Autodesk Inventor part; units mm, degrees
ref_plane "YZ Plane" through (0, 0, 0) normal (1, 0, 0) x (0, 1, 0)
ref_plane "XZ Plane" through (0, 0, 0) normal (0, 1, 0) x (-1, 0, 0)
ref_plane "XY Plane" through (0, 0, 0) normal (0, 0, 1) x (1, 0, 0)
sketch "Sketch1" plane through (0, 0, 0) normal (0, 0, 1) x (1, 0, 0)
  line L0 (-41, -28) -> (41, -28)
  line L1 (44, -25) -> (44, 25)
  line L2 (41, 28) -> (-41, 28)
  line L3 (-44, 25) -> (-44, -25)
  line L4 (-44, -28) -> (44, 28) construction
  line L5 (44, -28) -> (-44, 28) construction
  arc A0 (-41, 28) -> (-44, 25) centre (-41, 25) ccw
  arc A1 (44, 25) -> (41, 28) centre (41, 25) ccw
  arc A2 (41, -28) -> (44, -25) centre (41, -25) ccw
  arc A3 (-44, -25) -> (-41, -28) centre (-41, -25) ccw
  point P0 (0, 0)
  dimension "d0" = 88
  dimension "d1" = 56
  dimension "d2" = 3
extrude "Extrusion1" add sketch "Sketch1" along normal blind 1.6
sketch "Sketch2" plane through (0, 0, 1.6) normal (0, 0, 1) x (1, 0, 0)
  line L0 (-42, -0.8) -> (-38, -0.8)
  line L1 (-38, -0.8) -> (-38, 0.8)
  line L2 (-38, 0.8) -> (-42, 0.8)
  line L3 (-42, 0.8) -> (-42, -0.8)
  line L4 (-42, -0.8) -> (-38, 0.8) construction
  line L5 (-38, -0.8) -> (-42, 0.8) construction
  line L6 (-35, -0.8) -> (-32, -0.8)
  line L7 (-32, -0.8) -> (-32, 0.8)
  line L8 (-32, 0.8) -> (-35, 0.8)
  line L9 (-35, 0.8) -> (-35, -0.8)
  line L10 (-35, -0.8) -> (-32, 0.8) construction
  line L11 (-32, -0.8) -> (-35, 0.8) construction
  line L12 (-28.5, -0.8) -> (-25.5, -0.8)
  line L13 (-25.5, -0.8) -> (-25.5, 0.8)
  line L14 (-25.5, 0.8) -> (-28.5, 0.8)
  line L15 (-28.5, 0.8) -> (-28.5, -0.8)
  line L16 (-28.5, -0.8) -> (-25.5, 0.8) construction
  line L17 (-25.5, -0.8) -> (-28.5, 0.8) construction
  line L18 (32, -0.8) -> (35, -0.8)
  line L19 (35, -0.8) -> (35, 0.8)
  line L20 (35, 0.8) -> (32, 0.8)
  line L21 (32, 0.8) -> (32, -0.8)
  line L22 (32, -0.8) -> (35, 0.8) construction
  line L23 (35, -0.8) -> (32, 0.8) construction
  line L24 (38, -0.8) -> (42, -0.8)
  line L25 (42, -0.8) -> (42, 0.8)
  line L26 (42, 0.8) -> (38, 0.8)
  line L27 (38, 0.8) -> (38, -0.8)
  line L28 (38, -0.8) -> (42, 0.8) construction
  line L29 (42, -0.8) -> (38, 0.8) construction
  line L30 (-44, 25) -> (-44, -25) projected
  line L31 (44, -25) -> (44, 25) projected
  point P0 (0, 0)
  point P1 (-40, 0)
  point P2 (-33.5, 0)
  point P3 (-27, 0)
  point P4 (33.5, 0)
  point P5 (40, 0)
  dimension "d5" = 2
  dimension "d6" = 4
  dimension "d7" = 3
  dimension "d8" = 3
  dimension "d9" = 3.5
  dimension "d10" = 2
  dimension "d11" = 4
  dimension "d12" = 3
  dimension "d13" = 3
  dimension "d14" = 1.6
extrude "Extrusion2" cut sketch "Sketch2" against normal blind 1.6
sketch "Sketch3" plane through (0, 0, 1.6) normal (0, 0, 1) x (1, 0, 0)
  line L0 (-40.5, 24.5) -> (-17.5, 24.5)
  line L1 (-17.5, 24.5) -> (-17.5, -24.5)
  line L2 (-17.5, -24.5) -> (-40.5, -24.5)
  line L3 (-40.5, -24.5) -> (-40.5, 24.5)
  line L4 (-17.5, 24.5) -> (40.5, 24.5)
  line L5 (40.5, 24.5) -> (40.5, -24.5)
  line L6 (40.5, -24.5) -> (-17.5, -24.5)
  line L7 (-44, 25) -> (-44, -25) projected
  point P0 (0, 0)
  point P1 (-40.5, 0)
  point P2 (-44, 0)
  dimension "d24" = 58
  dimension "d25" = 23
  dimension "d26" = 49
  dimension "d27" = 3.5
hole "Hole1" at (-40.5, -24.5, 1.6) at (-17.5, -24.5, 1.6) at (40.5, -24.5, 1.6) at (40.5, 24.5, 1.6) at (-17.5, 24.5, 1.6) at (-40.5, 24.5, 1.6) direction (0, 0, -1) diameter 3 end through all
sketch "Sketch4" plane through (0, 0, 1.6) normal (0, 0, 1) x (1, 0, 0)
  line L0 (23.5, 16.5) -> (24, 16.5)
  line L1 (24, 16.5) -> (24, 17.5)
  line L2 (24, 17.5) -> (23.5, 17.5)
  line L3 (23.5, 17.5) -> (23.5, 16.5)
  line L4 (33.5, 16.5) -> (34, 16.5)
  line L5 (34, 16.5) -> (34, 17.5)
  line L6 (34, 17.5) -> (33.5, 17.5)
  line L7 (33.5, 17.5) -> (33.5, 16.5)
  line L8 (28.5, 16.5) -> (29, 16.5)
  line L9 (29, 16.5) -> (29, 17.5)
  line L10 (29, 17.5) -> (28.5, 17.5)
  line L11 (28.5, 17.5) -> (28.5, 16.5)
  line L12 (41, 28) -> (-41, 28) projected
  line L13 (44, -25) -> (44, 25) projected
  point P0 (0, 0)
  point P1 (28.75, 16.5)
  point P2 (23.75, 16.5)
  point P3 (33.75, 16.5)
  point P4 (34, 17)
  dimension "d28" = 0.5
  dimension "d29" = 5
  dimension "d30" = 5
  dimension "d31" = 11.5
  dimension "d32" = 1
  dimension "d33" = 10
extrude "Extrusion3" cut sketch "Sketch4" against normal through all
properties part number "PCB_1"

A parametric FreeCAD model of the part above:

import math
import FreeCAD as App
import Part
import Sketcher

doc = App.newDocument("Part")
body = doc.addObject("PartDesign::Body", "Body")

sketch1 = doc.addObject("Sketcher::SketchObject", "Sketch")
body.addObject(sketch1)
sketch1.AttachmentSupport = (doc.XY_Plane, [""])
sketch1.MapMode = "FlatFace"
sketch1.addGeometry([
    Part.ArcOfCircle(Part.Circle(App.Vector(-41, -25, 0), App.Vector(0, 0, 1), 3), math.radians(180), math.radians(270)),
    Part.LineSegment(App.Vector(-41, -28, 0), App.Vector(41, -28, 0)),
    Part.ArcOfCircle(Part.Circle(App.Vector(41, -25, 0), App.Vector(0, 0, 1), 3), math.radians(-90), math.radians(0)),
    Part.LineSegment(App.Vector(44, -25, 0), App.Vector(44, 25, 0)),
    Part.ArcOfCircle(Part.Circle(App.Vector(41, 25, 0), App.Vector(0, 0, 1), 3), math.radians(0), math.radians(90)),
    Part.LineSegment(App.Vector(41, 28, 0), App.Vector(-41, 28, 0)),
    Part.ArcOfCircle(Part.Circle(App.Vector(-41, 25, 0), App.Vector(0, 0, 1), 3), math.radians(90), math.radians(180)),
    Part.LineSegment(App.Vector(-44, 25, 0), App.Vector(-44, -25, 0)),
], False)
sketch1.addConstraint([
    Sketcher.Constraint("Tangent", 0, 2, 1, 1),
    Sketcher.Constraint("Tangent", 1, 2, 2, 1),
    Sketcher.Constraint("Tangent", 2, 2, 3, 1),
    Sketcher.Constraint("Tangent", 3, 2, 4, 1),
    Sketcher.Constraint("Tangent", 4, 2, 5, 1),
    Sketcher.Constraint("Tangent", 5, 2, 6, 1),
    Sketcher.Constraint("Tangent", 6, 2, 7, 1),
    Sketcher.Constraint("Tangent", 7, 2, 0, 1),
    Sketcher.Constraint("Horizontal", 1),
    Sketcher.Constraint("Vertical", 3),
    Sketcher.Constraint("Horizontal", 5),
    Sketcher.Constraint("Vertical", 7),
    Sketcher.Constraint("Equal", 0, 2),
    Sketcher.Constraint("Equal", 2, 4),
    Sketcher.Constraint("Equal", 4, 6),
    Sketcher.Constraint("Symmetric", 0, 3, 4, 3, -1, 1),
    Sketcher.Constraint("Radius", 0, 3.0),
    Sketcher.Constraint("DistanceY", 1, 2, 4, 2, 56.0),
    Sketcher.Constraint("DistanceX", 1, 1, 1, 2, 82.0),
])
pad1 = doc.addObject("PartDesign::Pad", "Pad")
body.addObject(pad1)
pad1.Profile = sketch1
pad1.Length = 1.6

sketch2 = doc.addObject("Sketcher::SketchObject", "Sketch001")
body.addObject(sketch2)
sketch2.AttachmentSupport = (doc.XY_Plane, [""])
sketch2.MapMode = "FlatFace"
sketch2.AttachmentOffset = App.Placement(App.Vector(0, 0, 1.6), App.Rotation())
sketch2.addGeometry([
    Part.LineSegment(App.Vector(-42, 0.8, 0), App.Vector(-42, -0.8, 0)),
    Part.LineSegment(App.Vector(-42, -0.8, 0), App.Vector(-38, -0.8, 0)),
    Part.LineSegment(App.Vector(-38, -0.8, 0), App.Vector(-38, 0.8, 0)),
    Part.LineSegment(App.Vector(-38, 0.8, 0), App.Vector(-42, 0.8, 0)),
    Part.LineSegment(App.Vector(-35, 0.8, 0), App.Vector(-35, -0.8, 0)),
    Part.LineSegment(App.Vector(-35, -0.8, 0), App.Vector(-32, -0.8, 0)),
    Part.LineSegment(App.Vector(-32, -0.8, 0), App.Vector(-32, 0.8, 0)),
    Part.LineSegment(App.Vector(-32, 0.8, 0), App.Vector(-35, 0.8, 0)),
    Part.LineSegment(App.Vector(-28.5, 0.8, 0), App.Vector(-28.5, -0.8, 0)),
    Part.LineSegment(App.Vector(-28.5, -0.8, 0), App.Vector(-25.5, -0.8, 0)),
    Part.LineSegment(App.Vector(-25.5, -0.8, 0), App.Vector(-25.5, 0.8, 0)),
    Part.LineSegment(App.Vector(-25.5, 0.8, 0), App.Vector(-28.5, 0.8, 0)),
    Part.LineSegment(App.Vector(32, 0.8, 0), App.Vector(32, -0.8, 0)),
    Part.LineSegment(App.Vector(32, -0.8, 0), App.Vector(35, -0.8, 0)),
    Part.LineSegment(App.Vector(35, -0.8, 0), App.Vector(35, 0.8, 0)),
    Part.LineSegment(App.Vector(35, 0.8, 0), App.Vector(32, 0.8, 0)),
    Part.LineSegment(App.Vector(38, 0.8, 0), App.Vector(38, -0.8, 0)),
    Part.LineSegment(App.Vector(38, -0.8, 0), App.Vector(42, -0.8, 0)),
    Part.LineSegment(App.Vector(42, -0.8, 0), App.Vector(42, 0.8, 0)),
    Part.LineSegment(App.Vector(42, 0.8, 0), App.Vector(38, 0.8, 0)),
], False)
sketch2.addConstraint([
    Sketcher.Constraint("Coincident", 0, 2, 1, 1),
    Sketcher.Constraint("Coincident", 1, 2, 2, 1),
    Sketcher.Constraint("Coincident", 2, 2, 3, 1),
    Sketcher.Constraint("Coincident", 3, 2, 0, 1),
    Sketcher.Constraint("Coincident", 4, 2, 5, 1),
    Sketcher.Constraint("Coincident", 5, 2, 6, 1),
    Sketcher.Constraint("Coincident", 6, 2, 7, 1),
    Sketcher.Constraint("Coincident", 7, 2, 4, 1),
    Sketcher.Constraint("Coincident", 8, 2, 9, 1),
    Sketcher.Constraint("Coincident", 9, 2, 10, 1),
    Sketcher.Constraint("Coincident", 10, 2, 11, 1),
    Sketcher.Constraint("Coincident", 11, 2, 8, 1),
    Sketcher.Constraint("Coincident", 12, 2, 13, 1),
    Sketcher.Constraint("Coincident", 13, 2, 14, 1),
    Sketcher.Constraint("Coincident", 14, 2, 15, 1),
    Sketcher.Constraint("Coincident", 15, 2, 12, 1),
    Sketcher.Constraint("Coincident", 16, 2, 17, 1),
    Sketcher.Constraint("Coincident", 17, 2, 18, 1),
    Sketcher.Constraint("Coincident", 18, 2, 19, 1),
    Sketcher.Constraint("Coincident", 19, 2, 16, 1),
    Sketcher.Constraint("Vertical", 0),
    Sketcher.Constraint("Horizontal", 1),
    Sketcher.Constraint("Vertical", 2),
    Sketcher.Constraint("Horizontal", 3),
    Sketcher.Constraint("Vertical", 4),
    Sketcher.Constraint("Horizontal", 5),
    Sketcher.Constraint("Vertical", 6),
    Sketcher.Constraint("Horizontal", 7),
    Sketcher.Constraint("Vertical", 8),
    Sketcher.Constraint("Horizontal", 9),
    Sketcher.Constraint("Vertical", 10),
    Sketcher.Constraint("Horizontal", 11),
    Sketcher.Constraint("Vertical", 12),
    Sketcher.Constraint("Horizontal", 13),
    Sketcher.Constraint("Vertical", 14),
    Sketcher.Constraint("Horizontal", 15),
    Sketcher.Constraint("Vertical", 16),
    Sketcher.Constraint("Horizontal", 17),
    Sketcher.Constraint("Vertical", 18),
    Sketcher.Constraint("Horizontal", 19),
    Sketcher.Constraint("Symmetric", 6, 2, 12, 2, -1, 1),
    Sketcher.Constraint("Symmetric", 4, 2, 14, 2, -1, 1),
    Sketcher.Constraint("Symmetric", 2, 2, 16, 2, -1, 1),
    Sketcher.Constraint("Symmetric", 0, 2, 18, 2, -1, 1),
    Sketcher.Constraint("Horizontal", 1, 2, 4, 2),
    Sketcher.Constraint("Horizontal", 3, 2, 6, 2),
    Sketcher.Constraint("Horizontal", 5, 2, 8, 2),
    Sketcher.Constraint("Horizontal", 7, 2, 10, 2),
    Sketcher.Constraint("Horizontal", 9, 2, 12, 2),
    Sketcher.Constraint("Equal", 7, 9),
    Sketcher.Constraint("DistanceX", 1, 1, 1, 2, 4.0),
    Sketcher.Constraint("DistanceX", 5, 1, 5, 2, 3.0),
    Sketcher.Constraint("DistanceY", 0, 2, 0, 1, 1.6),
    Sketcher.Constraint("DistanceX", 1, 2, 4, 2, 3.0),
    Sketcher.Constraint("DistanceX", 5, 2, 8, 2, 3.5),
    Sketcher.Constraint("DistanceX", 0, 2, -1, 1, 42.0),
])
pocket1 = doc.addObject("PartDesign::Pocket", "Pocket")
body.addObject(pocket1)
pocket1.Profile = sketch2
pocket1.Length = 1.6

sketch3 = doc.addObject("Sketcher::SketchObject", "Sketch002")
body.addObject(sketch3)
sketch3.AttachmentSupport = (doc.XY_Plane, [""])
sketch3.MapMode = "FlatFace"
sketch3.AttachmentOffset = App.Placement(App.Vector(0, 0, 1.6), App.Rotation())
sketch3.addGeometry([
    Part.Circle(App.Vector(-40.5, -24.5, 0), App.Vector(0, 0, 1), 1.5),
    Part.Circle(App.Vector(-17.5, -24.5, 0), App.Vector(0, 0, 1), 1.5),
    Part.Circle(App.Vector(40.5, -24.5, 0), App.Vector(0, 0, 1), 1.5),
    Part.Circle(App.Vector(40.5, 24.5, 0), App.Vector(0, 0, 1), 1.5),
    Part.Circle(App.Vector(-17.5, 24.5, 0), App.Vector(0, 0, 1), 1.5),
    Part.Circle(App.Vector(-40.5, 24.5, 0), App.Vector(0, 0, 1), 1.5),
], False)
sketch3.addConstraint([
    Sketcher.Constraint("Equal", 0, 1),
    Sketcher.Constraint("Equal", 1, 2),
    Sketcher.Constraint("Equal", 2, 3),
    Sketcher.Constraint("Equal", 3, 4),
    Sketcher.Constraint("Equal", 4, 5),
    Sketcher.Constraint("Symmetric", 0, 3, 3, 3, -1, 1),
    Sketcher.Constraint("Symmetric", 2, 3, 5, 3, -1, 1),
    Sketcher.Constraint("Symmetric", 0, 3, 2, 3, -2),
    Sketcher.Constraint("Symmetric", 1, 3, 4, 3, -1),
    Sketcher.Constraint("Horizontal", 0, 3, 1, 3),
    Sketcher.Constraint("Diameter", 0, 3.0),
    Sketcher.Constraint("DistanceX", 0, 3, 1, 3, 23.0),
    Sketcher.Constraint("DistanceX", 1, 3, 2, 3, 58.0),
    Sketcher.Constraint("DistanceY", 2, 3, 3, 3, 49.0),
])
doc.recompute()
hole = doc.addObject("PartDesign::Hole", "Hole")
body.addObject(hole)
hole.Profile = sketch3
hole.ThreadType = "None"
hole.Diameter = 3
hole.DepthType = "ThroughAll"

sketch4 = doc.addObject("Sketcher::SketchObject", "Sketch003")
body.addObject(sketch4)
sketch4.AttachmentSupport = (doc.XY_Plane, [""])
sketch4.MapMode = "FlatFace"
sketch4.AttachmentOffset = App.Placement(App.Vector(0, 0, 1.6), App.Rotation())
sketch4.addGeometry([
    Part.LineSegment(App.Vector(23.5, 17.5, 0), App.Vector(23.5, 16.5, 0)),
    Part.LineSegment(App.Vector(23.5, 16.5, 0), App.Vector(24, 16.5, 0)),
    Part.LineSegment(App.Vector(24, 16.5, 0), App.Vector(24, 17.5, 0)),
    Part.LineSegment(App.Vector(24, 17.5, 0), App.Vector(23.5, 17.5, 0)),
    Part.LineSegment(App.Vector(33.5, 17.5, 0), App.Vector(33.5, 16.5, 0)),
    Part.LineSegment(App.Vector(33.5, 16.5, 0), App.Vector(34, 16.5, 0)),
    Part.LineSegment(App.Vector(34, 16.5, 0), App.Vector(34, 17.5, 0)),
    Part.LineSegment(App.Vector(34, 17.5, 0), App.Vector(33.5, 17.5, 0)),
    Part.LineSegment(App.Vector(28.5, 17.5, 0), App.Vector(28.5, 16.5, 0)),
    Part.LineSegment(App.Vector(28.5, 16.5, 0), App.Vector(29, 16.5, 0)),
    Part.LineSegment(App.Vector(29, 16.5, 0), App.Vector(29, 17.5, 0)),
    Part.LineSegment(App.Vector(29, 17.5, 0), App.Vector(28.5, 17.5, 0)),
], False)
sketch4.addConstraint([
    Sketcher.Constraint("Coincident", 0, 2, 1, 1),
    Sketcher.Constraint("Coincident", 1, 2, 2, 1),
    Sketcher.Constraint("Coincident", 2, 2, 3, 1),
    Sketcher.Constraint("Coincident", 3, 2, 0, 1),
    Sketcher.Constraint("Coincident", 4, 2, 5, 1),
    Sketcher.Constraint("Coincident", 5, 2, 6, 1),
    Sketcher.Constraint("Coincident", 6, 2, 7, 1),
    Sketcher.Constraint("Coincident", 7, 2, 4, 1),
    Sketcher.Constraint("Coincident", 8, 2, 9, 1),
    Sketcher.Constraint("Coincident", 9, 2, 10, 1),
    Sketcher.Constraint("Coincident", 10, 2, 11, 1),
    Sketcher.Constraint("Coincident", 11, 2, 8, 1),
    Sketcher.Constraint("Vertical", 0),
    Sketcher.Constraint("Horizontal", 1),
    Sketcher.Constraint("Vertical", 2),
    Sketcher.Constraint("Horizontal", 3),
    Sketcher.Constraint("Vertical", 4),
    Sketcher.Constraint("Horizontal", 5),
    Sketcher.Constraint("Vertical", 6),
    Sketcher.Constraint("Horizontal", 7),
    Sketcher.Constraint("Vertical", 8),
    Sketcher.Constraint("Horizontal", 9),
    Sketcher.Constraint("Vertical", 10),
    Sketcher.Constraint("Horizontal", 11),
    Sketcher.Constraint("Horizontal", 1, 2, 4, 2),
    Sketcher.Constraint("Horizontal", 3, 2, 6, 2),
    Sketcher.Constraint("Horizontal", 5, 2, 8, 2),
    Sketcher.Constraint("Horizontal", 7, 2, 10, 2),
    Sketcher.Constraint("Equal", 3, 5),
    Sketcher.Constraint("Equal", 7, 9),
    Sketcher.Constraint("DistanceY", 0, 2, 0, 1, 1.0),
    Sketcher.Constraint("DistanceX", 1, 1, 1, 2, 0.5),
    Sketcher.Constraint("DistanceX", 0, 2, 4, 2, 10.0),
    Sketcher.Constraint("DistanceX", 0, 2, 8, 2, 5.0),
    Sketcher.Constraint("DistanceX", -1, 1, 1, 2, 24.0),
    Sketcher.Constraint("DistanceY", -1, 1, 0, 2, 16.5),
])
pocket2 = doc.addObject("PartDesign::Pocket", "Pocket001")
body.addObject(pocket2)
pocket2.Profile = sketch4
pocket2.Type = "ThroughAll"

doc.recompute()
